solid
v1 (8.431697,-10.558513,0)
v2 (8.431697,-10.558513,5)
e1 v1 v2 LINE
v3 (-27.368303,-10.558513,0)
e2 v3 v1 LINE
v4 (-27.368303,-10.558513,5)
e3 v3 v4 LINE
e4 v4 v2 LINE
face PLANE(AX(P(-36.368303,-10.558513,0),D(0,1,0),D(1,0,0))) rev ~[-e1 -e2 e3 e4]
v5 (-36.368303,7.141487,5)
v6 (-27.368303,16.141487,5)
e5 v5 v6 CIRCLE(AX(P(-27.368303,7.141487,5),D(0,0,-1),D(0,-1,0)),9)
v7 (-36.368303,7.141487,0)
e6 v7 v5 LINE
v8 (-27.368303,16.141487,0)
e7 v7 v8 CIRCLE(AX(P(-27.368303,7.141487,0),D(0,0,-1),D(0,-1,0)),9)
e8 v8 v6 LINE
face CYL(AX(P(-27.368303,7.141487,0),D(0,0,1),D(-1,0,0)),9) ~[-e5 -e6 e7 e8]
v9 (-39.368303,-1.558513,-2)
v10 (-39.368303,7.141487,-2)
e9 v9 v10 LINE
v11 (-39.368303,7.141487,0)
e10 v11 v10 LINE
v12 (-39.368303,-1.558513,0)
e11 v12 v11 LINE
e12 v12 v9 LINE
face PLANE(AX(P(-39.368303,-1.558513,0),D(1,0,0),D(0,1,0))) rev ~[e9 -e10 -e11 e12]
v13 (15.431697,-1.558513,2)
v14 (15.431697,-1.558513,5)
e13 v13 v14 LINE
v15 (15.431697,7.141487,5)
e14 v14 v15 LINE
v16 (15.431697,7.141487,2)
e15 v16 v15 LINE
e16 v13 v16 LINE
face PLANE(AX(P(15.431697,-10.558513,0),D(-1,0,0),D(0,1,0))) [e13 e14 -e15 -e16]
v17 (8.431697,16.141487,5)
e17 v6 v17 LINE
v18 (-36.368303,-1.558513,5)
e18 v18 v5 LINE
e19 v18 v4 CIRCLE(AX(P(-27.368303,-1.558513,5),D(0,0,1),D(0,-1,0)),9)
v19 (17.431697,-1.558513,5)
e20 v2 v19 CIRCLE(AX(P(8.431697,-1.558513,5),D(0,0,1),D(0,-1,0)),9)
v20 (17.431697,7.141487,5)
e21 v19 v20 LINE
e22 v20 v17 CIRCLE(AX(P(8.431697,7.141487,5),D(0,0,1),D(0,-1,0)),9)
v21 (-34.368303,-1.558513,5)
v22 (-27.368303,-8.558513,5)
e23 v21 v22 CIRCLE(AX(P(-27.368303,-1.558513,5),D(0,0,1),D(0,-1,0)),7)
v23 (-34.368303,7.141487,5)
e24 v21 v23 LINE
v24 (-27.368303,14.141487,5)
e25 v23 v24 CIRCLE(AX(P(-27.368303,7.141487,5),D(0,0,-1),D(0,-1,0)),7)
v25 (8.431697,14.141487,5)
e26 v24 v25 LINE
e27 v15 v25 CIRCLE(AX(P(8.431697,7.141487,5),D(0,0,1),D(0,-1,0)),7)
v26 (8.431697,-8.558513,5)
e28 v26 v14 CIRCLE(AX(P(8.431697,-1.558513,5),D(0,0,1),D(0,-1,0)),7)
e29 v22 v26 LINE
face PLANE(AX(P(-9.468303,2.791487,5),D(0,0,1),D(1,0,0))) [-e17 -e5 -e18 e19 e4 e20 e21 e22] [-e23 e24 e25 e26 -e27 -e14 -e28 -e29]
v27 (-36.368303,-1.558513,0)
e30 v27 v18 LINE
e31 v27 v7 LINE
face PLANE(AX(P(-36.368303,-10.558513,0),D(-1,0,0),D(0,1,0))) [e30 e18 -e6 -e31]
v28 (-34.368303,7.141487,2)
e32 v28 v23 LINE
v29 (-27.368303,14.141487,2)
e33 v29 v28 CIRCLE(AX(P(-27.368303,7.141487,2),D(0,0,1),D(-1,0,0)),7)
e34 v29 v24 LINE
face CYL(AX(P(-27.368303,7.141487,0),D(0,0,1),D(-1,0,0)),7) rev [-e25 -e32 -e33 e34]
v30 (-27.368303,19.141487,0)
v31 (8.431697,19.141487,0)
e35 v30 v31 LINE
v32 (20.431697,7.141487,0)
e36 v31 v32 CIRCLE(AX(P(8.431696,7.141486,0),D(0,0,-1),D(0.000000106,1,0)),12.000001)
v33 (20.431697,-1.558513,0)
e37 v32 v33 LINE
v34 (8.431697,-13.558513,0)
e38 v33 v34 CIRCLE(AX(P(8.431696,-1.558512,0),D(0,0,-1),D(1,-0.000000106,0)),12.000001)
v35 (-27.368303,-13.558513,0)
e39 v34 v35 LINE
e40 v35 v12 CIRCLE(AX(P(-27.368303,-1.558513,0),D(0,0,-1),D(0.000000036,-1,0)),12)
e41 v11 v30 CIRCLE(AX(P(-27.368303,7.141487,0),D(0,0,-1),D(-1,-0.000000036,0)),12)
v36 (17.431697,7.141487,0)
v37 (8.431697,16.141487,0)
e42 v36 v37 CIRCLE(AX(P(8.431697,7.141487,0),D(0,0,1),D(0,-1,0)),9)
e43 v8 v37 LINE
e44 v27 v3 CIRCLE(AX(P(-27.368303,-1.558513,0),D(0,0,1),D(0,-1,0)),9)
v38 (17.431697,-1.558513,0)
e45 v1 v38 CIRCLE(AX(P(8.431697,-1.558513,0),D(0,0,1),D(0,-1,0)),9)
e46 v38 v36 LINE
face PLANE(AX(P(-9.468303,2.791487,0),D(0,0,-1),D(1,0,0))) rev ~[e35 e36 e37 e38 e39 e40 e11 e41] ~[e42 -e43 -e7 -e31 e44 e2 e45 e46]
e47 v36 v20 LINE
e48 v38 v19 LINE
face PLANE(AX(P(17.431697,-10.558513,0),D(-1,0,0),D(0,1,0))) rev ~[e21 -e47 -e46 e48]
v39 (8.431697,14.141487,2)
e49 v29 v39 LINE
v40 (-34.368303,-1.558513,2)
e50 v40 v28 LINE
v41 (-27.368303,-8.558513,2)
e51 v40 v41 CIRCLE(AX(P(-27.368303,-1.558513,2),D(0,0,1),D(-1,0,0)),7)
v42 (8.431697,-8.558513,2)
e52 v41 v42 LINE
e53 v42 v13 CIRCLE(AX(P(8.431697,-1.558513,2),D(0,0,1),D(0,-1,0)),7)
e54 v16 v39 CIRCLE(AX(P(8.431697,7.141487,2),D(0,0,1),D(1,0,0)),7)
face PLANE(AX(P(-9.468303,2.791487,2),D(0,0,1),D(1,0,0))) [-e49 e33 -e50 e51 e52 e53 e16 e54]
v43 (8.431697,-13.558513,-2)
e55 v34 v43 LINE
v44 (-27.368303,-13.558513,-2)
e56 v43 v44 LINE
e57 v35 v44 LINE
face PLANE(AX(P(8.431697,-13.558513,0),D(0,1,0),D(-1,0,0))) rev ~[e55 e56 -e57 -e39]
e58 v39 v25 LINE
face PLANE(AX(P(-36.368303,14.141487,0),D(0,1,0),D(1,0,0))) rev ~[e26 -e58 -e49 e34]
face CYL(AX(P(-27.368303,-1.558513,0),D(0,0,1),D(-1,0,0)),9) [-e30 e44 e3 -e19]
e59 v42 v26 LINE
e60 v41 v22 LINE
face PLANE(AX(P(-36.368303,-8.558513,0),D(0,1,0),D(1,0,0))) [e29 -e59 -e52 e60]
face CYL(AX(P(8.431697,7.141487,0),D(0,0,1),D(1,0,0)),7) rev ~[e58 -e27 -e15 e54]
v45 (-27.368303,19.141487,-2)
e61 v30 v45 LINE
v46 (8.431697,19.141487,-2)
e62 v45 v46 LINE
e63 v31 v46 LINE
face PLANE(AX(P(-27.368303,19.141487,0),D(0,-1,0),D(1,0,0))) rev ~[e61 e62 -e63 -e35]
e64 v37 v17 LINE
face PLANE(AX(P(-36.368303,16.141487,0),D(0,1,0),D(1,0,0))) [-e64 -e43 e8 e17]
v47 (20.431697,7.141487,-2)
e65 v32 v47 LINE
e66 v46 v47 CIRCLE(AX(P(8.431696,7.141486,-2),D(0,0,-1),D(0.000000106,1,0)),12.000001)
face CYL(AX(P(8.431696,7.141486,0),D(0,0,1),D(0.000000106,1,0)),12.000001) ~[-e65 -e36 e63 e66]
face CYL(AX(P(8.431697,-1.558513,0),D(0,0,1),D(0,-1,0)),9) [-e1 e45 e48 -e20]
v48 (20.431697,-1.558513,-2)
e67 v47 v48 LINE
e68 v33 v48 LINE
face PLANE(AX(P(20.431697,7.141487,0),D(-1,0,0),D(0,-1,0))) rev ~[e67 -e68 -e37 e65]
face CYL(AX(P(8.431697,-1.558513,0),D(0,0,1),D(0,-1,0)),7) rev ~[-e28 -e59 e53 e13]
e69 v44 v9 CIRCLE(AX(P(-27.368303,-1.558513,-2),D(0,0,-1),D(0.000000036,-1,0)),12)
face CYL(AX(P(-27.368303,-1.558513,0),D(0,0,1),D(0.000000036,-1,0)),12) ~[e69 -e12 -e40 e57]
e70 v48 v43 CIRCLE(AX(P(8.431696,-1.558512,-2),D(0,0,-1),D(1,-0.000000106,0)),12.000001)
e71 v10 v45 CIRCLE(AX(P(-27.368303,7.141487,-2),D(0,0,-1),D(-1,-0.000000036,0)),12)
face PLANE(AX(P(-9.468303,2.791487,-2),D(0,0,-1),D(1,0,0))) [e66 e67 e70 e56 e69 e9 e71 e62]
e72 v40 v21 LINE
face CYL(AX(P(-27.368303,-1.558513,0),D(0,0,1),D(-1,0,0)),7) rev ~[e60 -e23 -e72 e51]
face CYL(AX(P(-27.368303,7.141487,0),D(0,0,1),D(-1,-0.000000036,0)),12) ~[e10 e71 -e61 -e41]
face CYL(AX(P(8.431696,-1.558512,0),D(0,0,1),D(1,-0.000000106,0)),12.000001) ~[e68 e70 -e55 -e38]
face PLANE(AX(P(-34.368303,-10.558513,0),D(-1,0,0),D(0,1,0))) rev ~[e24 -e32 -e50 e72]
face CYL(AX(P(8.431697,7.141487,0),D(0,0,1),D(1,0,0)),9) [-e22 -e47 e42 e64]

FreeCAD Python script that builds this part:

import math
import FreeCAD as App
import Part
import Sketcher
from FreeCAD import Vector


def edges_at(feature, points):
    """Names of the edges that pass closest to the given points."""
    edges = feature.Shape.Edges
    near = lambda p: min(range(len(edges)), key=lambda i: edges[i].distToShape(Part.Vertex(*p))[0])
    return sorted({f"Edge{near(p) + 1}" for p in points})


def faces_at(feature, points):
    """Names of the faces that lie closest to the given points."""
    faces = feature.Shape.Faces
    near = lambda p: min(range(len(faces)), key=lambda i: faces[i].distToShape(Part.Vertex(*p))[0])
    return sorted({f"Face{near(p) + 1}" for p in points})


def add_polygon(sketch, points):
    """Adds a closed chain of lines whose ends are joined by coincident constraints."""
    first, n = sketch.GeometryCount, len(points)
    for a, b in zip(points, points[1:] + points[:1]):
        sketch.addGeometry(Part.LineSegment(App.Vector(*a, 0), App.Vector(*b, 0)), False)
    for i in range(n):
        sketch.addConstraint(Sketcher.Constraint("Coincident", first + i, 2, first + (i + 1) % n, 1))

doc = App.newDocument("Part")
params = doc.addObject("Spreadsheet::Sheet", "Params")
for row, (alias, value) in enumerate([
    ("sketch1_width", "53.8 mm"),
    ("sketch1_height", "26.7 mm"),
    ("pad1_length", "5 mm"),
    ("fillet_radius", "9 mm"),
    ("thickness_wall", "2 mm"),
    ("sketch2_radius", "12.000001 mm"),
    ("sketch2_width", "35.8 mm"),
    ("sketch2_height", "8.7 mm"),
    ("pad2_length", "2 mm"),
], start=1):
    params.set(f"A{row}", alias)
    params.set(f"B{row}", "=" + value)
    params.setAlias(f"B{row}", alias)

body = doc.addObject("PartDesign::Body", "Body")

sketch1 = doc.addObject("Sketcher::SketchObject", "Sketch")
body.addObject(sketch1)
sketch1.AttachmentSupport = (doc.XY_Plane, [""])
sketch1.MapMode = "FlatFace"
add_polygon(sketch1, [(-36, 16), (-36, -11), (17, -11), (17, 16)])
sketch1.addConstraint([
    Sketcher.Constraint("Vertical", 0),
    Sketcher.Constraint("Horizontal", 1),
    Sketcher.Constraint("Vertical", 2),
    Sketcher.Constraint("Horizontal", 3),
    Sketcher.Constraint("DistanceX", 1, 1, 1, 2, 53.8),
    Sketcher.Constraint("DistanceY", 0, 2, 0, 1, 26.7),
    Sketcher.Constraint("DistanceX", 0, 2, -1, 1, 36.368303),
    Sketcher.Constraint("DistanceY", 0, 2, -1, 1, 10.558513),
])
sketch1.setExpression("Constraints[8]", "Params.sketch1_width")
sketch1.setExpression("Constraints[9]", "Params.sketch1_height")
pad1 = doc.addObject("PartDesign::Pad", "Pad")
body.addObject(pad1)
pad1.Profile = sketch1
pad1.setExpression("Length", "Params.pad1_length")
doc.recompute()

fillet = doc.addObject("PartDesign::Fillet", "Fillet")
body.addObject(fillet)
fillet.Base = (pad1, edges_at(pad1, [
    (-36.368, 16.141, 2.5),
    (17.432, 16.141, 2.5),
    (17.432, -10.559, 2.5),
    (-36.368, -10.559, 2.5),
]))
fillet.setExpression("Radius", "Params.fillet_radius")
doc.recompute()

thickness = doc.addObject("PartDesign::Thickness", "Thickness")
body.addObject(thickness)
thickness.Base = (fillet, faces_at(fillet, [(-9.468, 2.791, 5)]))
thickness.setExpression("Value", "Params.thickness_wall")
thickness.Reversed = True
thickness.Join = "Arc"

sketch2 = doc.addObject("Sketcher::SketchObject", "Sketch001")
body.addObject(sketch2)
sketch2.AttachmentSupport = (doc.XY_Plane, [""])
sketch2.MapMode = "FlatFace"
sketch2.addGeometry([
    Part.LineSegment(Vector(20, 7, 0), Vector(20, -2, 0)),
    Part.ArcOfCircle(Part.Circle(Vector(8, -2, 0), Vector(0, 0, 1), 12), math.radians(-90), math.radians(0)),
    Part.LineSegment(Vector(8, -14, 0), Vector(-27, -14, 0)),
    Part.ArcOfCircle(Part.Circle(Vector(-27, -2, 0), Vector(0, 0, 1), 12), math.radians(180), math.radians(270)),
    Part.LineSegment(Vector(-39, -2, 0), Vector(-39, 7, 0)),
    Part.ArcOfCircle(Part.Circle(Vector(-27, 7, 0), Vector(0, 0, 1), 12), math.radians(90), math.radians(180)),
    Part.LineSegment(Vector(-27, 19, 0), Vector(8, 19, 0)),
    Part.ArcOfCircle(Part.Circle(Vector(8, 7, 0), Vector(0, 0, 1), 12), math.radians(0), math.radians(90)),
], False)
sketch2.addConstraint([
    Sketcher.Constraint("Tangent", 0, 2, 1, 2),
    Sketcher.Constraint("Tangent", 1, 1, 2, 1),
    Sketcher.Constraint("Tangent", 2, 2, 3, 2),
    Sketcher.Constraint("Tangent", 3, 1, 4, 1),
    Sketcher.Constraint("Tangent", 4, 2, 5, 2),
    Sketcher.Constraint("Tangent", 5, 1, 6, 1),
    Sketcher.Constraint("Tangent", 6, 2, 7, 2),
    Sketcher.Constraint("Tangent", 7, 1, 0, 1),
    Sketcher.Constraint("Vertical", 0),
    Sketcher.Constraint("Horizontal", 2),
    Sketcher.Constraint("Vertical", 4),
    Sketcher.Constraint("Horizontal", 6),
    Sketcher.Constraint("Equal", 1, 3),
    Sketcher.Constraint("Equal", 3, 5),
    Sketcher.Constraint("Equal", 5, 7),
    Sketcher.Constraint("Radius", 1, 12.000001),
    Sketcher.Constraint("DistanceX", 2, 2, 2, 1, 35.8),
    Sketcher.Constraint("DistanceY", 0, 2, 0, 1, 8.7),
    Sketcher.Constraint("DistanceY", 1, 3, -1, 1, 1.558512),
    Sketcher.Constraint("DistanceX", -1, 1, 1, 3, 8.431696),
])
sketch2.setExpression("Constraints[15]", "Params.sketch2_radius")
sketch2.setExpression("Constraints[16]", "Params.sketch2_width")
sketch2.setExpression("Constraints[17]", "Params.sketch2_height")
pad2 = doc.addObject("PartDesign::Pad", "Pad001")
body.addObject(pad2)
pad2.Profile = sketch2
pad2.setExpression("Length", "Params.pad2_length")
pad2.Reversed = True

doc.recompute()
